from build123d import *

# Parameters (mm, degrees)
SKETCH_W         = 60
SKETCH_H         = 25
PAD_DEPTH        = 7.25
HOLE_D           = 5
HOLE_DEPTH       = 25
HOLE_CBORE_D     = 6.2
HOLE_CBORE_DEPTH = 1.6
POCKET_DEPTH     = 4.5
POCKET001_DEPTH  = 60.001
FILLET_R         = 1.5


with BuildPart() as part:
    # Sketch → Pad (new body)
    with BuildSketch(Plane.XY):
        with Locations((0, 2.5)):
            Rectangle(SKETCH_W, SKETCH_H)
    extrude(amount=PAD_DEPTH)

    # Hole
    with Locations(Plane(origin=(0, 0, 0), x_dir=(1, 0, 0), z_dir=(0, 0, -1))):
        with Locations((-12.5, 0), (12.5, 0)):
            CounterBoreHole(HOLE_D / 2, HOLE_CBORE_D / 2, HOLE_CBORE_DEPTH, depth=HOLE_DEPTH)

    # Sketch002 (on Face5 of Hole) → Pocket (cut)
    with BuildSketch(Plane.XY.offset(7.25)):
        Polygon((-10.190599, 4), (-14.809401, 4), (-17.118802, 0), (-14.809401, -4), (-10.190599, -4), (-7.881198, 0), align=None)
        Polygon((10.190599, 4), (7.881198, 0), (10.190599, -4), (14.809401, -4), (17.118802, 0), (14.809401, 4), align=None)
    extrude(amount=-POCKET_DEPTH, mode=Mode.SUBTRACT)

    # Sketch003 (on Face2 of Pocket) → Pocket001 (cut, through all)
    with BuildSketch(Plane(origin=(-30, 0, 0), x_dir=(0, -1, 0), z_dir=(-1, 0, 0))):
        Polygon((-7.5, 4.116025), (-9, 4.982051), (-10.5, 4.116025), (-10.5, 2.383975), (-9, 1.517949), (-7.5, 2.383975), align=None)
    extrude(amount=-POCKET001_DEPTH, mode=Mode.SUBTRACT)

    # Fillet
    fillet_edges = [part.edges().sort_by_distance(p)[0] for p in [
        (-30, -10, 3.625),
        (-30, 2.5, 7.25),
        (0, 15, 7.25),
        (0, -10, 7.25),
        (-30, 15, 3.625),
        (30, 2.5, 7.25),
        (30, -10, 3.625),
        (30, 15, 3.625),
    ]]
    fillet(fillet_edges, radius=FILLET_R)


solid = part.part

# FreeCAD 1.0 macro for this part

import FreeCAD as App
import Part
import Sketcher
Q = App.Units.Quantity


def edges_at(feature, points):
    """Names of the edges that pass closest to the given points."""
    edges = feature.Shape.Edges
    near = lambda p: min(range(len(edges)), key=lambda i: edges[i].distToShape(Part.Vertex(*p))[0])
    return sorted({f"Edge{near(p) + 1}" for p in points})


def add_polygon(sketch, points):
    """Adds a closed chain of lines whose ends are joined by coincident constraints."""
    first, n = sketch.GeometryCount, len(points)
    for a, b in zip(points, points[1:] + points[:1]):
        sketch.addGeometry(Part.LineSegment(App.Vector(*a, 0), App.Vector(*b, 0)), False)
    for i in range(n):
        sketch.addConstraint(Sketcher.Constraint("Coincident", first + i, 2, first + (i + 1) % n, 1))

doc = App.newDocument("Part")
params = doc.addObject("Spreadsheet::Sheet", "Params")
for row, (alias, value) in enumerate([
    ("sketch1_width", "60 mm"),
    ("sketch1_height", "25 mm"),
    ("pad1_length", "7.25 mm"),
    ("sketch2_diameter", "5 mm"),
    ("hole_diameter", "5 mm"),
    ("hole_depth", "25 mm"),
    ("hole_cbore_diameter", "6.2 mm"),
    ("hole_cbore_depth", "1.6 mm"),
    ("pocket1_length", "4.5 mm"),
    ("fillet_radius", "1.5 mm"),
], start=1):
    params.set(f"A{row}", alias)
    params.set(f"B{row}", "=" + value)
    params.setAlias(f"B{row}", alias)

body = doc.addObject("PartDesign::Body", "Body")

# Sketch on XY plane
sketch1 = body.newObject("Sketcher::SketchObject", "Sketch")
sketch1.AttachmentSupport = (doc.getObject("XY_Plane"), [""])
sketch1.MapMode = "FlatFace"
add_polygon(sketch1, [(-30, 15), (-30, -10), (30, -10), (30, 15)])  # lines 0-3
sketch1.addConstraint([
    Sketcher.Constraint("Vertical", 0),
    Sketcher.Constraint("Horizontal", 1),
    Sketcher.Constraint("Vertical", 2),
    Sketcher.Constraint("Horizontal", 3),
    Sketcher.Constraint("DistanceX", 1, 1, 1, 2, Q("60 mm")),
    Sketcher.Constraint("DistanceY", 0, 2, 0, 1, Q("25 mm")),
    Sketcher.Constraint("DistanceX", 0, 2, -1, 1, Q("30 mm")),
    Sketcher.Constraint("DistanceY", 0, 2, -1, 1, Q("10 mm")),
])
sketch1.setExpression("Constraints[8]", "Params.sketch1_width")
sketch1.setExpression("Constraints[9]", "Params.sketch1_height")
pad1 = body.newObject("PartDesign::Pad", "Pad")
pad1.Profile = sketch1
pad1.setExpression("Length", "Params.pad1_length")

# Sketch on XY plane
sketch2 = body.newObject("Sketcher::SketchObject", "Sketch001")
sketch2.AttachmentSupport = (doc.getObject("XY_Plane"), [""])
sketch2.MapMode = "FlatFace"
sketch2.addGeometry([
    Part.Circle(App.Vector(-12.5, 0, 0), App.Vector(0, 0, 1), 2.5),
    Part.Circle(App.Vector(12.5, 0, 0), App.Vector(0, 0, 1), 2.5),
], False)
sketch2.addConstraint([
    Sketcher.Constraint("Equal", 0, 1),
    Sketcher.Constraint("Symmetric", 0, 3, 1, 3, -1, 1),
    Sketcher.Constraint("PointOnObject", 0, 3, -1),
    Sketcher.Constraint("Diameter", 0, Q("5 mm")),
    Sketcher.Constraint("DistanceX", 0, 3, 1, 3, Q("25 mm")),
])
sketch2.setExpression("Constraints[3]", "Params.sketch2_diameter")
doc.recompute()
hole = body.newObject("PartDesign::Hole", "Hole")
hole.Profile = sketch2
hole.ThreadType = "None"
hole.setExpression("Diameter", "Params.hole_diameter")
hole.DepthType = "Dimension"
hole.setExpression("Depth", "Params.hole_depth")
hole.DrillPoint = "Flat"
hole.HoleCutType = "Counterbore"
hole.setExpression("HoleCutDiameter", "Params.hole_cbore_diameter")
hole.setExpression("HoleCutDepth", "Params.hole_cbore_depth")
hole.Reversed = True

# Sketch on XY plane
sketch3 = body.newObject("Sketcher::SketchObject", "Sketch002")
sketch3.AttachmentSupport = (doc.getObject("XY_Plane"), [""])
sketch3.MapMode = "FlatFace"
sketch3.AttachmentOffset = App.Placement(App.Vector(0, 0, 7.25), App.Rotation())
add_polygon(sketch3, [(-10.190599, 4), (-14.809401, 4), (-17.118802, 0), (-14.809401, -4), (-10.190599, -4), (-7.881198, 0)])  # lines 0-5
add_polygon(sketch3, [(10.190599, 4), (7.881198, 0), (10.190599, -4), (14.809401, -4), (17.118802, 0), (14.809401, 4)])  # lines 6-11
sketch3.addConstraint([
    Sketcher.Constraint("Horizontal", 0),
    Sketcher.Constraint("Horizontal", 3),
    Sketcher.Constraint("Horizontal", 8),
    Sketcher.Constraint("Horizontal", 11),
    Sketcher.Constraint("Symmetric", 4, 2, 6, 2, -1, 1),
    Sketcher.Constraint("Symmetric", 5, 2, 7, 2, -1, 1),
    Sketcher.Constraint("Symmetric", 1, 2, 9, 2, -1, 1),
    Sketcher.Constraint("Symmetric", 2, 2, 10, 2, -1, 1),
    Sketcher.Constraint("Symmetric", 3, 2, 7, 2, -2),
    Sketcher.Constraint("PointOnObject", 1, 2, -1),
    Sketcher.Constraint("PointOnObject", 4, 2, -1),
    Sketcher.Constraint("Parallel", 1, 4),
    Sketcher.Constraint("Parallel", 2, 5),
    Sketcher.Constraint("Parallel", 4, 6),
    Sketcher.Constraint("Parallel", 6, 9),
    Sketcher.Constraint("Angle", 1, Q("-119.999999 deg")),
    Sketcher.Constraint("DistanceY", -1, 1, 0, 2, Q("4 mm")),
    Sketcher.Constraint("DistanceX", 2, 2, 7, 2, Q("25 mm")),
    Sketcher.Constraint("DistanceX", 0, 2, 0, 1, Q("4.618802 mm")),
])
pocket1 = body.newObject("PartDesign::Pocket", "Pocket")
pocket1.Profile = sketch3
pocket1.setExpression("Length", "Params.pocket1_length")

# Sketch on YZ plane
sketch4 = body.newObject("Sketcher::SketchObject", "Sketch003")
sketch4.AttachmentSupport = (doc.getObject("YZ_Plane"), [""])
sketch4.MapMode = "FlatFace"
sketch4.AttachmentOffset = App.Placement(App.Vector(0, 0, -30), App.Rotation())
add_polygon(sketch4, [(7.5, 4.116025), (9, 4.982051), (10.5, 4.116025), (10.5, 2.383975), (9, 1.517949), (7.5, 2.383975)])  # lines 0-5
sketch4.addConstraint([
    Sketcher.Constraint("Vertical", 2),
    Sketcher.Constraint("Vertical", 5),
    Sketcher.Constraint("Parallel", 0, 3),
    Sketcher.Constraint("Parallel", 1, 4),
    Sketcher.Constraint("Horizontal", 2, 2, 4, 2),
    Sketcher.Constraint("Horizontal", 1, 2, 5, 2),
    Sketcher.Constraint("Vertical", 0, 2, 3, 2),
    Sketcher.Constraint("Angle", 0, Q("30.000017 deg")),
    Sketcher.Constraint("DistanceX", -1, 1, 0, 2, Q("9 mm")),
    Sketcher.Constraint("DistanceX", 4, 2, 2, 2, Q("3 mm")),
    Sketcher.Constraint("DistanceY", 2, 2, 2, 1, Q("1.73205 mm")),
    Sketcher.Constraint("DistanceY", -1, 1, 0, 2, Q("4.982051 mm")),
])
pocket2 = body.newObject("PartDesign::Pocket", "Pocket001")
pocket2.Profile = sketch4
pocket2.Type = "ThroughAll"
pocket2.Reversed = True
doc.recompute()

fillet = body.newObject("PartDesign::Fillet", "Fillet")
fillet.Base = (pocket2, edges_at(pocket2, [
    (-30, -10, 3.625),
    (-30, 2.5, 7.25),
    (0, 15, 7.25),
    (0, -10, 7.25),
    (-30, 15, 3.625),
    (30, 2.5, 7.25),
    (30, -10, 3.625),
    (30, 15, 3.625),
]))
fillet.setExpression("Radius", "Params.fillet_radius")

doc.recompute()
